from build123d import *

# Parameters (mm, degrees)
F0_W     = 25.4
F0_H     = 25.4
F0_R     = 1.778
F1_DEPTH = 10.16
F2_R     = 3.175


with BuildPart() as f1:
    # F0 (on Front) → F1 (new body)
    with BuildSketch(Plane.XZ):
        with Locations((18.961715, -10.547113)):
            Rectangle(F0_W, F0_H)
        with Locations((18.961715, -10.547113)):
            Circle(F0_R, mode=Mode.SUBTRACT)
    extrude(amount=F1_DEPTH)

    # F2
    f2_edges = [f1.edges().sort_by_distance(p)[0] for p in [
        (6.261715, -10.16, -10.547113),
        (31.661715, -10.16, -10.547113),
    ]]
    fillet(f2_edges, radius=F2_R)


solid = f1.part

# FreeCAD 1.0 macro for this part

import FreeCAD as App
import Part
import Sketcher

V = App.Vector
Q = App.Units.Quantity


def edges_at(feature, points):
    """Names of the edges that pass closest to the given points."""
    edges = feature.Shape.Edges
    near = lambda p: min(range(len(edges)), key=lambda i: edges[i].distToShape(Part.Vertex(*p))[0])
    return sorted({f"Edge{near(p) + 1}" for p in points})

doc = App.newDocument("Part")
body = doc.addObject("PartDesign::Body", "Body")

# Sketch on XZ plane
sketch1 = doc.addObject("Sketcher::SketchObject", "Sketch")
body.addObject(sketch1)
sketch1.AttachmentSupport = (doc.XZ_Plane, [""])
sketch1.MapMode = "FlatFace"
sketch1.addGeometry(Part.LineSegment(V(6.3, 2.2, 0), V(6.3, -23.2, 0)), False)
sketch1.addGeometry(Part.LineSegment(V(6.3, -23.2, 0), V(31.7, -23.2, 0)), False)
sketch1.addGeometry(Part.LineSegment(V(31.7, -23.2, 0), V(31.7, 2.2, 0)), False)
sketch1.addGeometry(Part.LineSegment(V(31.7, 2.2, 0), V(6.3, 2.2, 0)), False)
sketch1.addGeometry(Part.Circle(V(19, -10.5, 0), V(0, 0, 1), 1.8), False)
sketch1.addConstraint(Sketcher.Constraint("Coincident", 0, 2, 1, 1))
sketch1.addConstraint(Sketcher.Constraint("Coincident", 1, 2, 2, 1))
sketch1.addConstraint(Sketcher.Constraint("Coincident", 2, 2, 3, 1))
sketch1.addConstraint(Sketcher.Constraint("Coincident", 3, 2, 0, 1))
sketch1.addConstraint(Sketcher.Constraint("Vertical", 0))
sketch1.addConstraint(Sketcher.Constraint("Horizontal", 1))
sketch1.addConstraint(Sketcher.Constraint("Vertical", 2))
sketch1.addConstraint(Sketcher.Constraint("Horizontal", 3))
sketch1.addConstraint(Sketcher.Constraint("Equal", 3, 0))
sketch1.addConstraint(Sketcher.Constraint("Diameter", 4, Q("0.14 in")))
sketch1.addConstraint(Sketcher.Constraint("DistanceX", 1, 1, 1, 2, Q("1 in")))
sketch1.addConstraint(Sketcher.Constraint("DistanceX", 0, 2, 4, 3, Q("0.5 in")))
sketch1.addConstraint(Sketcher.Constraint("DistanceY", 0, 2, 4, 3, Q("0.5 in")))
sketch1.addConstraint(Sketcher.Constraint("DistanceX", -1, 1, 4, 3, Q("18.961715 mm")))
sketch1.addConstraint(Sketcher.Constraint("DistanceY", 4, 3, -1, 1, Q("10.547113 mm")))
pad1 = doc.addObject("PartDesign::Pad", "Pad")
body.addObject(pad1)
pad1.Profile = sketch1
pad1.Length = Q("0.4 in")
doc.recompute()

fillet = doc.addObject("PartDesign::Fillet", "Fillet")
body.addObject(fillet)
fillet.Base = (pad1, edges_at(pad1, [(6.262, -10.16, -10.547), (31.662, -10.16, -10.547)]))
fillet.Radius = Q("0.125 in")

doc.recompute()
